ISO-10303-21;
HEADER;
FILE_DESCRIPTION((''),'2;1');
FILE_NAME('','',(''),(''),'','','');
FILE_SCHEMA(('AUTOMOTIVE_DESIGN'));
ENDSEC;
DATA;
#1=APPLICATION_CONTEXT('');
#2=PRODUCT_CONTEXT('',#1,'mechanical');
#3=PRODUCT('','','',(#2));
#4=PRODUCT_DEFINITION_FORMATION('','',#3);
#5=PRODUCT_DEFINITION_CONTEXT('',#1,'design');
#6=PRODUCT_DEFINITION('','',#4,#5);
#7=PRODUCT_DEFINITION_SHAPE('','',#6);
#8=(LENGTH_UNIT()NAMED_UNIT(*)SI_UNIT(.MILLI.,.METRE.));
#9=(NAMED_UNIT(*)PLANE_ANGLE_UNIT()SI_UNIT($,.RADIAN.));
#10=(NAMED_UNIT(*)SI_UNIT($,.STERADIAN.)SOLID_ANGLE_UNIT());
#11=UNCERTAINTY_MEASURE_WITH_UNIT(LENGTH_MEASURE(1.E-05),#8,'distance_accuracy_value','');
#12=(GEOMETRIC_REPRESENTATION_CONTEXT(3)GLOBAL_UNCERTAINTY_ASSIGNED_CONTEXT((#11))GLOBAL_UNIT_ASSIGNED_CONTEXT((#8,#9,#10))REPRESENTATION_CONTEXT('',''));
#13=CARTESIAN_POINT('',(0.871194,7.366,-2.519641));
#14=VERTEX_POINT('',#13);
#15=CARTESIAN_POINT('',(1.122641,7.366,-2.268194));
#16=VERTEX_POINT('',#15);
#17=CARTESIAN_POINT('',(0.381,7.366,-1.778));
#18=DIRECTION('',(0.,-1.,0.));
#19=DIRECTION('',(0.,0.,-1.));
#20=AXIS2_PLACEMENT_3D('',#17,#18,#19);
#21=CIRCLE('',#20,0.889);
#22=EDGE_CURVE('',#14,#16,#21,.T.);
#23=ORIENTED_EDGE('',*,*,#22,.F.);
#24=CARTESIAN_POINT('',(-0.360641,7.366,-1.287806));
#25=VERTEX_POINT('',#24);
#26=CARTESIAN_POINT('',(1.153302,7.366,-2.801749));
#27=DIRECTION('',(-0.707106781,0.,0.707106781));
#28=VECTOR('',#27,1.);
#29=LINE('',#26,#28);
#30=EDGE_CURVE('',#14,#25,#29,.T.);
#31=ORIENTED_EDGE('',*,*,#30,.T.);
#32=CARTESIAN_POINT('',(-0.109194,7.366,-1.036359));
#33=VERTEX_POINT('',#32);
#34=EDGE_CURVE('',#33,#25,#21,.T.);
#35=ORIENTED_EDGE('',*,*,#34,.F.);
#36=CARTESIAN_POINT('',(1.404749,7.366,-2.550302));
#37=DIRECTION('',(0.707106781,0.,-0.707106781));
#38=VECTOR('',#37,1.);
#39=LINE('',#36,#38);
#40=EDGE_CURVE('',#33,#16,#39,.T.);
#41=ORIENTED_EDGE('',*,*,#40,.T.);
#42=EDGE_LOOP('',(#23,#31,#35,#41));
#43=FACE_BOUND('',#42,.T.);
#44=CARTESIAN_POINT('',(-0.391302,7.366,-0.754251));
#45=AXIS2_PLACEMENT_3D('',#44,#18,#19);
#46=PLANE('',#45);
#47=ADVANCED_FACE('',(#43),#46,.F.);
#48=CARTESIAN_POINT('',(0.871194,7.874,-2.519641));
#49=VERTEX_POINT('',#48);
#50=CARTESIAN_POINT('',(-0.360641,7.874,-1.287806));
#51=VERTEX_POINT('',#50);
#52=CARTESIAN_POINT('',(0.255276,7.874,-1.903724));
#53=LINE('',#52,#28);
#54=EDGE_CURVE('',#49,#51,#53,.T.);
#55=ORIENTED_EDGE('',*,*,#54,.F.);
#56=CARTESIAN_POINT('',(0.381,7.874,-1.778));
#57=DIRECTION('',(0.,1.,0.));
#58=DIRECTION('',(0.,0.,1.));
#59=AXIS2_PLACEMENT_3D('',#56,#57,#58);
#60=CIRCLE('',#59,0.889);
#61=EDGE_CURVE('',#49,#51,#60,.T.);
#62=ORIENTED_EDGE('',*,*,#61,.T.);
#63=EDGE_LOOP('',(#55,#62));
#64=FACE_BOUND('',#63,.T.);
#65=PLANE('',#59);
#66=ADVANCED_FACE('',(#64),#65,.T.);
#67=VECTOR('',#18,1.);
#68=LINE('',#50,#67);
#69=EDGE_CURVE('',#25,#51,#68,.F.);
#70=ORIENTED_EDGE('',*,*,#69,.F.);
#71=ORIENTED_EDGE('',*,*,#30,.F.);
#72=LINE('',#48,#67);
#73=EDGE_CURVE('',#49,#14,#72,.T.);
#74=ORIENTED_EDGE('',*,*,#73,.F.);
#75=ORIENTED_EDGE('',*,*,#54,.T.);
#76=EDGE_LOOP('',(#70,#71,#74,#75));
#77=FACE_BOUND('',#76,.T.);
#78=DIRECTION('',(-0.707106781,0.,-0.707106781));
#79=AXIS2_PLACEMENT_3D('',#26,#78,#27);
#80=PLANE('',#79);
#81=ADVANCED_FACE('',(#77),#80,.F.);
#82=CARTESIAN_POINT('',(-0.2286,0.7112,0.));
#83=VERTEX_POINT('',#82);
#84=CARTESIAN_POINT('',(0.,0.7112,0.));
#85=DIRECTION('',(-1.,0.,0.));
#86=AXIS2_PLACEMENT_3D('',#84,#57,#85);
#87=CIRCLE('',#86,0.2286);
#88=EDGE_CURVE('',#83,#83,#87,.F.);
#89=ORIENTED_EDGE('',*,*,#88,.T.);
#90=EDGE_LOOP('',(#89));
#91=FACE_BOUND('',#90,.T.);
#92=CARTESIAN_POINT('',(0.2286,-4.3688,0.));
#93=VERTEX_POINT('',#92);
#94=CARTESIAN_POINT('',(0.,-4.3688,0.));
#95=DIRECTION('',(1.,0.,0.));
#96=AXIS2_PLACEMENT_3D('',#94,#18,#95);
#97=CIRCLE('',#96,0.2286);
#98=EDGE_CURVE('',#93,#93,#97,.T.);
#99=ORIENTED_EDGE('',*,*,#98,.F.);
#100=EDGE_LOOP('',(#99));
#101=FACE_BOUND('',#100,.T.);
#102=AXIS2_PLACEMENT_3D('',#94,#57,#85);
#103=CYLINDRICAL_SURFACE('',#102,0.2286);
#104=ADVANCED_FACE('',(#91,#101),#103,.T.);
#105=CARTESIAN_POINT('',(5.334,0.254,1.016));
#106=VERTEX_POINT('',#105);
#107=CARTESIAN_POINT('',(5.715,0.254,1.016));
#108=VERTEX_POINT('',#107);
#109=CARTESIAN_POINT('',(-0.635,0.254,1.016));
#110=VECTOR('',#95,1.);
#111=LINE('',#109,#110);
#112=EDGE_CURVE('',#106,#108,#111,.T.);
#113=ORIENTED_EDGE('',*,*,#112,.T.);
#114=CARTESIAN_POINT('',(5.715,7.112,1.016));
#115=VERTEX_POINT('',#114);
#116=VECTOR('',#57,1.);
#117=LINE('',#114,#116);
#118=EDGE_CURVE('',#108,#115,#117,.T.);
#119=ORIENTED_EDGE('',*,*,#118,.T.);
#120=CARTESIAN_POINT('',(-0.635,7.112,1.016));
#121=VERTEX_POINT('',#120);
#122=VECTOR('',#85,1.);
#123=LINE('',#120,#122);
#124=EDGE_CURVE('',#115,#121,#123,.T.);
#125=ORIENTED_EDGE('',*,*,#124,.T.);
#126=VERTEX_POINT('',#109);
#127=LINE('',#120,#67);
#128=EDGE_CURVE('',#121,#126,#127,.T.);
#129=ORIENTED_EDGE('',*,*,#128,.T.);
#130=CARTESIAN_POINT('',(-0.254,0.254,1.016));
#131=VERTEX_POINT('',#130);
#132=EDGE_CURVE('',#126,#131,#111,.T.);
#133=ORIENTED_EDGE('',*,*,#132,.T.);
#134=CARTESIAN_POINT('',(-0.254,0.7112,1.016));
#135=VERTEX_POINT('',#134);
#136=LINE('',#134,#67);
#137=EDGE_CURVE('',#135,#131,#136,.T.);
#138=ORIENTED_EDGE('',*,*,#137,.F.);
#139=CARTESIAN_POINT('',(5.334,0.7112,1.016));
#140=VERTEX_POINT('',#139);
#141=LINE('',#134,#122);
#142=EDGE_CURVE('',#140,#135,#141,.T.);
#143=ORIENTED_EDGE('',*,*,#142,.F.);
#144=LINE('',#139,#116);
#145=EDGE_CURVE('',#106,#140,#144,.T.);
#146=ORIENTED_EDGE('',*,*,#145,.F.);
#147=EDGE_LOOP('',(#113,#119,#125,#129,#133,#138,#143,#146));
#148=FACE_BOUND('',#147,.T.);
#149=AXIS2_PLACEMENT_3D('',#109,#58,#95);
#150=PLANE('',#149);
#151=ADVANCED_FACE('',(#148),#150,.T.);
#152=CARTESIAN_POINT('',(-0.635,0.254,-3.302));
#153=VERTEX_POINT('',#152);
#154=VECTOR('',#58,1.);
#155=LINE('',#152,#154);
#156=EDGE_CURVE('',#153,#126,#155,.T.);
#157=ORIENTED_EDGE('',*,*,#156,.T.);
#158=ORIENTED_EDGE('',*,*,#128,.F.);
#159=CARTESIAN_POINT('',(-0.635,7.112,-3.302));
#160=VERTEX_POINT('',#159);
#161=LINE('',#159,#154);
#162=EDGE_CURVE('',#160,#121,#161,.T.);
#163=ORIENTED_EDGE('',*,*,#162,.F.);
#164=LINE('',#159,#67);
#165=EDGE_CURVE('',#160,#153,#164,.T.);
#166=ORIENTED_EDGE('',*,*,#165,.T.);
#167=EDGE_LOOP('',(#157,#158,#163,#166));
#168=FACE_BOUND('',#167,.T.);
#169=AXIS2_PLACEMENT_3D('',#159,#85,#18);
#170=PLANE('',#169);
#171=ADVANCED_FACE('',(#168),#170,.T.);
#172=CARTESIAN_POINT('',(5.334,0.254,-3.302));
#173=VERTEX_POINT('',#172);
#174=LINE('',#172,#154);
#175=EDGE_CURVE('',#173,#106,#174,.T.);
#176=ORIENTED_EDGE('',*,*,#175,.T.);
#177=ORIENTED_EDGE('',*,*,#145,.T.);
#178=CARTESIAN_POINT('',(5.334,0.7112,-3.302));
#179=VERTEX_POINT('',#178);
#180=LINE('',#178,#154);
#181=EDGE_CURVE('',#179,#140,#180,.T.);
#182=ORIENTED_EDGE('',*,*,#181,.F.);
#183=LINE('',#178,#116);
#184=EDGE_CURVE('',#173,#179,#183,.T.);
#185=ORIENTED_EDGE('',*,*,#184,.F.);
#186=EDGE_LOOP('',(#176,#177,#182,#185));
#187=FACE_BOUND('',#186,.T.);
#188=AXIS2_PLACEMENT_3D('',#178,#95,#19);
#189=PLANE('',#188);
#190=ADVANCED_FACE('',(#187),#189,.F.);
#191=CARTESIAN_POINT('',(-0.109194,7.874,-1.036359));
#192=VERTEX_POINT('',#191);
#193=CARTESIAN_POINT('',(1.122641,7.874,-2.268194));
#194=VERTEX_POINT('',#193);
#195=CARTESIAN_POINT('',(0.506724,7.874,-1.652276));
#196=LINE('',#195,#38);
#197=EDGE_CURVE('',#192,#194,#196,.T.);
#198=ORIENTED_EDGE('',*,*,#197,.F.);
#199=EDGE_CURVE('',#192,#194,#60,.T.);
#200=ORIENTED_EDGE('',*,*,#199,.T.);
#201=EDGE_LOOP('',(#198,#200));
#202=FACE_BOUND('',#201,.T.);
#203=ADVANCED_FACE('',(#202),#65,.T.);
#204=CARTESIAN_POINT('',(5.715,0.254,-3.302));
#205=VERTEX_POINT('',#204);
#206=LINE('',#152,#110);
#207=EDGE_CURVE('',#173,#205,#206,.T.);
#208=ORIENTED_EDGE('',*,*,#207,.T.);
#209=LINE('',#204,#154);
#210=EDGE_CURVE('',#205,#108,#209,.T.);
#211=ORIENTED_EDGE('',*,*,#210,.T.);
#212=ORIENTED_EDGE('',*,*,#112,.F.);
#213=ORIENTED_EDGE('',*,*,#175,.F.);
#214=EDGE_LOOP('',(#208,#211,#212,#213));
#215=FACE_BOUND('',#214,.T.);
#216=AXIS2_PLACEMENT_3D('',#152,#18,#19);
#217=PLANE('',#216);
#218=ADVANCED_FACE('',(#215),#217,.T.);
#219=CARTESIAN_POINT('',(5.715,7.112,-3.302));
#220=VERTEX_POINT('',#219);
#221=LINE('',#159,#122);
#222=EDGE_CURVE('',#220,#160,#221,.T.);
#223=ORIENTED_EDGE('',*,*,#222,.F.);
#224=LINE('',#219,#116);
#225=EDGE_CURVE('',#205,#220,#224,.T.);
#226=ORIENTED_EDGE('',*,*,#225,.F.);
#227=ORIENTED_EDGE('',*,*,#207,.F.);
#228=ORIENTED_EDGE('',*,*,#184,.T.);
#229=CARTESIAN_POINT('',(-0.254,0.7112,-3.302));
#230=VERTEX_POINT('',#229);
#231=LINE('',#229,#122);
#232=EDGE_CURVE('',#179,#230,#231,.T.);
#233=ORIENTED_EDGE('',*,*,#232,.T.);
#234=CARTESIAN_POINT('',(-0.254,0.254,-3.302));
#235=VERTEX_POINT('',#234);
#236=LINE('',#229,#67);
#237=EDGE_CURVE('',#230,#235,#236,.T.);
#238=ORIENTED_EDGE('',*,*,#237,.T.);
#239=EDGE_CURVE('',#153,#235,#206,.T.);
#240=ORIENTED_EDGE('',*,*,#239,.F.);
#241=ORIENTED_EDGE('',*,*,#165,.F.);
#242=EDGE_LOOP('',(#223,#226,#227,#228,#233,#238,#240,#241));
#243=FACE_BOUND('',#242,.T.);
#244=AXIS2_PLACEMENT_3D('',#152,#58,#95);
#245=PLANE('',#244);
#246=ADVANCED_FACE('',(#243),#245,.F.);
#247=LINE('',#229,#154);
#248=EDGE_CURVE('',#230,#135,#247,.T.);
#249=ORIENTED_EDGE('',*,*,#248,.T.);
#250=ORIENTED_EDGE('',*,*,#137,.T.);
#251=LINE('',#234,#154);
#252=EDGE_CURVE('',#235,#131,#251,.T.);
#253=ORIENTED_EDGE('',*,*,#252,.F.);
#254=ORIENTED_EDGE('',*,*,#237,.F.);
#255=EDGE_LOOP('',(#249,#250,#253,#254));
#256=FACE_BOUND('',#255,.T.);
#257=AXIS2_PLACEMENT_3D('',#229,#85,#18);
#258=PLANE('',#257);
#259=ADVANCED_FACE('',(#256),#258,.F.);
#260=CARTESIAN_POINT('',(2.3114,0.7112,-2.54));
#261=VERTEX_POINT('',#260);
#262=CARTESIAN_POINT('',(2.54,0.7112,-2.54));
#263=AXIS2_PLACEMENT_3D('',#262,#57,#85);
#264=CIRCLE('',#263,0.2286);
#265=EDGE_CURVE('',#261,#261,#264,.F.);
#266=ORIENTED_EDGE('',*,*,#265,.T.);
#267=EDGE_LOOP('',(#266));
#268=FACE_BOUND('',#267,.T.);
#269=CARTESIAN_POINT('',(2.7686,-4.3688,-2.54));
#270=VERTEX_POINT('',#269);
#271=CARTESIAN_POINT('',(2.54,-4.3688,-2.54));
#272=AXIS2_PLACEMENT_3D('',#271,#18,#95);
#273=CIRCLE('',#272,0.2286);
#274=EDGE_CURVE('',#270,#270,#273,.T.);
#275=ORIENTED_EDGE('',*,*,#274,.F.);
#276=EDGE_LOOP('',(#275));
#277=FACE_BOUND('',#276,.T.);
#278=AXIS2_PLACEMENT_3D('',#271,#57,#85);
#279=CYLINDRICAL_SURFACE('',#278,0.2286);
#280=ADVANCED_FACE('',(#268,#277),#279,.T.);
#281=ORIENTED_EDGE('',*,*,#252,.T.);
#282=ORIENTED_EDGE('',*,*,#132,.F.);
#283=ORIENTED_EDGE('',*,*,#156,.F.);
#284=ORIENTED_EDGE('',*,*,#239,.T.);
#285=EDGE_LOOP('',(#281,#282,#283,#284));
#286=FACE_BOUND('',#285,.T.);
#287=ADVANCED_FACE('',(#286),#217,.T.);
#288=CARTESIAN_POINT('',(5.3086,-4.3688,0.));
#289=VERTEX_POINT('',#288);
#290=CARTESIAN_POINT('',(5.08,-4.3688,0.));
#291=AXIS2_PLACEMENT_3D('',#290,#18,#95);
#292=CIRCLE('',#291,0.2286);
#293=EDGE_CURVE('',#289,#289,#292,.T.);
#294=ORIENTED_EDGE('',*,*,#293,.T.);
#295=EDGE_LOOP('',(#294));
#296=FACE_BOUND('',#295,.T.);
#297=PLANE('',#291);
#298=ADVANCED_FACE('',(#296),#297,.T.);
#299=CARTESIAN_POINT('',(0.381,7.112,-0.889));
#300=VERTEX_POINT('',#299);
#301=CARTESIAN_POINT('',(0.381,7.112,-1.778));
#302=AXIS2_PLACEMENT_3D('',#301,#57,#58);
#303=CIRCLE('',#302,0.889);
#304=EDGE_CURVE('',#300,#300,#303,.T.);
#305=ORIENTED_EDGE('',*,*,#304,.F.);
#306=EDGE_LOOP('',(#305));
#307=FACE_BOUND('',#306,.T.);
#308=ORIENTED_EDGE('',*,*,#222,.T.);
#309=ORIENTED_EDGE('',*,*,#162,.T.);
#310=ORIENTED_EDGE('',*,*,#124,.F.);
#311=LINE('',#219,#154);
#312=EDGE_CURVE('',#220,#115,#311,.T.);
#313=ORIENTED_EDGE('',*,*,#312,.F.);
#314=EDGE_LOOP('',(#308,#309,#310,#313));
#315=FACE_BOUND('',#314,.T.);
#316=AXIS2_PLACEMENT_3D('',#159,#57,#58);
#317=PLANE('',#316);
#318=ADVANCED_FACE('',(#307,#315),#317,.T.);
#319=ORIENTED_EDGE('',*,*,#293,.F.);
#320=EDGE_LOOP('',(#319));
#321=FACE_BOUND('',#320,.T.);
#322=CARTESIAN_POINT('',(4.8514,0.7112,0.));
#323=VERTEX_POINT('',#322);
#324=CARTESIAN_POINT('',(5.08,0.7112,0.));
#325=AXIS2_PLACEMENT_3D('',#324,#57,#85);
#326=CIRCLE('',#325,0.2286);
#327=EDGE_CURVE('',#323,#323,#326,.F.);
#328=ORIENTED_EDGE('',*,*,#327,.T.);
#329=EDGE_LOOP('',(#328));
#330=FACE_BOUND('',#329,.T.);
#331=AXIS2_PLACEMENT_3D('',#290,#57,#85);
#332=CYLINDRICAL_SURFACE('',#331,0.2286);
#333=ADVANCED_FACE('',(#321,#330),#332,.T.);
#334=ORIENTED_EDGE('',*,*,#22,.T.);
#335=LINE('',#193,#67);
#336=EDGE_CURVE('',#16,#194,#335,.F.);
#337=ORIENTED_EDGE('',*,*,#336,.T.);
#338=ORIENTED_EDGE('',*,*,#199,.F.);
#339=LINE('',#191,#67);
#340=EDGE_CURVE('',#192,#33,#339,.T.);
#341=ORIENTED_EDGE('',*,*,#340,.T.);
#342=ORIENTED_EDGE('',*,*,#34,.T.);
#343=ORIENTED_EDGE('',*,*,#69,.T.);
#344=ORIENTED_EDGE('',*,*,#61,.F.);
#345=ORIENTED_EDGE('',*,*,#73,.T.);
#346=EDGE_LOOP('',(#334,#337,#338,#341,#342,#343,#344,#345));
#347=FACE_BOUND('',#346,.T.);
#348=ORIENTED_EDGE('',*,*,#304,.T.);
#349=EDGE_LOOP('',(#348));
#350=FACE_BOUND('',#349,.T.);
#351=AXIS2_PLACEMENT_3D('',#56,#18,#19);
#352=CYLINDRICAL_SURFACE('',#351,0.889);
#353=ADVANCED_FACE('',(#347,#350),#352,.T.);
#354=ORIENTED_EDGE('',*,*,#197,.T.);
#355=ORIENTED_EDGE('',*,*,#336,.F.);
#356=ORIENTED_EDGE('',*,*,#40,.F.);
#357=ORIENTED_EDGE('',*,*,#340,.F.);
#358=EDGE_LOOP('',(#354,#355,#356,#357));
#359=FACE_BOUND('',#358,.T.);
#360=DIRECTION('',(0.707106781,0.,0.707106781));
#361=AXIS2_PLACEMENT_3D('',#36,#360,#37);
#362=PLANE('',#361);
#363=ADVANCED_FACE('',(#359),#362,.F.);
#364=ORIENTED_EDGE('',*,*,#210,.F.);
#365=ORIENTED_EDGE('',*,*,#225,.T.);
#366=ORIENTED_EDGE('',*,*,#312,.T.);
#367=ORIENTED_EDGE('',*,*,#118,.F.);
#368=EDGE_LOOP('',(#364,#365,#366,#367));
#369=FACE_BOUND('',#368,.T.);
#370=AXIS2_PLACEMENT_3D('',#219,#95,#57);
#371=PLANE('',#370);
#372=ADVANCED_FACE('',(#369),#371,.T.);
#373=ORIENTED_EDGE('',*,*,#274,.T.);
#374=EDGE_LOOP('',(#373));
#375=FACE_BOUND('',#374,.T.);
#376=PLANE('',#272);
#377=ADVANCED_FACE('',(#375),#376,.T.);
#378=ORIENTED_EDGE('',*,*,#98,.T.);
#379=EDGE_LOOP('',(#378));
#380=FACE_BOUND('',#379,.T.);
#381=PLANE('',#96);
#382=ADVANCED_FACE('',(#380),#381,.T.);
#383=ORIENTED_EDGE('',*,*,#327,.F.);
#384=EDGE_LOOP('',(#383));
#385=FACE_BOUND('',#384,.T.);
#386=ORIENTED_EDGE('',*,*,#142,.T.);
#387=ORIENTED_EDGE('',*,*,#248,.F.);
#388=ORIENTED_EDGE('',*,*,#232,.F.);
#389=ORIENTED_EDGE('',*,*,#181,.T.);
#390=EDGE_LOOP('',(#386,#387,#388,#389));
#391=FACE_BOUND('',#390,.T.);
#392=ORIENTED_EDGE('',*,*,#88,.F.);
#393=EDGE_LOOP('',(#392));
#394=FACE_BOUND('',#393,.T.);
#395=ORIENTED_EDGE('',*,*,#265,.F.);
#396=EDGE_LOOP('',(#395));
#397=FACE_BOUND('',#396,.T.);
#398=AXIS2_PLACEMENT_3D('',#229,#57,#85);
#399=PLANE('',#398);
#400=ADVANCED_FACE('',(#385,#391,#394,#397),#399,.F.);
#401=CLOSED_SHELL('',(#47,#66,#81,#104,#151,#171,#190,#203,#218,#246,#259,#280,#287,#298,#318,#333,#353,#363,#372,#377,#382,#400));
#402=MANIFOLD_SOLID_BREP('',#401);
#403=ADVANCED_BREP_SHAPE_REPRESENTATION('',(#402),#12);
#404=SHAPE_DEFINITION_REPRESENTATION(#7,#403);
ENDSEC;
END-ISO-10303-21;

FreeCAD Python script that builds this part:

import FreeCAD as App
import Part
import Sketcher
Q = App.Units.Quantity

doc = App.newDocument("Part")
body = doc.addObject("PartDesign::Body", "Body")

# Sketch on XY plane
sketch1 = body.newObject("Sketcher::SketchObject", "Sketch")
sketch1.AttachmentSupport = (doc.getObject("XY_Plane"), [""])
sketch1.MapMode = "FlatFace"
sketch1.addGeometry(Part.LineSegment(App.Vector(-0.635, 7.112, 0), App.Vector(-0.635, 0.254, 0)), False)
sketch1.addGeometry(Part.LineSegment(App.Vector(-0.635, 0.254, 0), App.Vector(5.715, 0.254, 0)), False)
sketch1.addGeometry(Part.LineSegment(App.Vector(5.715, 0.254, 0), App.Vector(5.715, 7.112, 0)), False)
sketch1.addGeometry(Part.LineSegment(App.Vector(5.715, 7.112, 0), App.Vector(-0.635, 7.112, 0)), False)
sketch1.addConstraint(Sketcher.Constraint("Coincident", 0, 2, 1, 1))
sketch1.addConstraint(Sketcher.Constraint("Coincident", 1, 2, 2, 1))
sketch1.addConstraint(Sketcher.Constraint("Coincident", 2, 2, 3, 1))
sketch1.addConstraint(Sketcher.Constraint("Coincident", 3, 2, 0, 1))
sketch1.addConstraint(Sketcher.Constraint("Vertical", 0))
sketch1.addConstraint(Sketcher.Constraint("Horizontal", 1))
sketch1.addConstraint(Sketcher.Constraint("Vertical", 2))
sketch1.addConstraint(Sketcher.Constraint("Horizontal", 3))
sketch1.addConstraint(Sketcher.Constraint("DistanceX", 1, 1, 1, 2, Q("0.25 in")))
sketch1.addConstraint(Sketcher.Constraint("DistanceY", 0, 2, 0, 1, Q("0.27 in")))
sketch1.addConstraint(Sketcher.Constraint("DistanceY", -1, 1, 0, 2, Q("0.01 in")))
sketch1.addConstraint(Sketcher.Constraint("DistanceX", 0, 2, -1, 1, Q("0.025 in")))
pad1 = body.newObject("PartDesign::Pad", "Pad")
pad1.Profile = sketch1
pad1.Type = "TwoLengths"
pad1.Length = Q("0.04 in")
pad1.Length2 = Q("0.13 in")

# Sketch on XY plane
sketch2 = body.newObject("Sketcher::SketchObject", "Sketch001")
sketch2.AttachmentSupport = (doc.getObject("XY_Plane"), [""])
sketch2.MapMode = "FlatFace"
sketch2.AttachmentOffset = App.Placement(App.Vector(0, 0, 0.04 * 25.4), App.Rotation())
sketch2.addGeometry(Part.LineSegment(App.Vector(-0.254, 0.7112, 0), App.Vector(-0.254, 0.254, 0)), False)
sketch2.addGeometry(Part.LineSegment(App.Vector(-0.254, 0.254, 0), App.Vector(5.334, 0.254, 0)), False)
sketch2.addGeometry(Part.LineSegment(App.Vector(5.334, 0.254, 0), App.Vector(5.334, 0.7112, 0)), False)
sketch2.addGeometry(Part.LineSegment(App.Vector(5.334, 0.7112, 0), App.Vector(-0.254, 0.7112, 0)), False)
sketch2.addConstraint(Sketcher.Constraint("Coincident", 0, 2, 1, 1))
sketch2.addConstraint(Sketcher.Constraint("Coincident", 1, 2, 2, 1))
sketch2.addConstraint(Sketcher.Constraint("Coincident", 2, 2, 3, 1))
sketch2.addConstraint(Sketcher.Constraint("Coincident", 3, 2, 0, 1))
sketch2.addConstraint(Sketcher.Constraint("Vertical", 0))
sketch2.addConstraint(Sketcher.Constraint("Horizontal", 1))
sketch2.addConstraint(Sketcher.Constraint("Vertical", 2))
sketch2.addConstraint(Sketcher.Constraint("Horizontal", 3))
sketch2.addConstraint(Sketcher.Constraint("DistanceX", 1, 1, 1, 2, Q("0.22 in")))
sketch2.addConstraint(Sketcher.Constraint("DistanceY", 0, 2, 0, 1, Q("0.018 in")))
sketch2.addConstraint(Sketcher.Constraint("DistanceX", 0, 2, -1, 1, Q("0.01 in")))
sketch2.addConstraint(Sketcher.Constraint("DistanceY", -1, 1, 0, 2, Q("0.01 in")))
pocket1 = body.newObject("PartDesign::Pocket", "Pocket")
pocket1.Profile = sketch2
pocket1.Type = "ThroughAll"

# Sketch on XZ plane
sketch3 = body.newObject("Sketcher::SketchObject", "Sketch002")
sketch3.AttachmentSupport = (doc.getObject("XZ_Plane"), [""])
sketch3.MapMode = "FlatFace"
sketch3.AttachmentOffset = App.Placement(App.Vector(0, 0, -0.28 * 25.4), App.Rotation())
sketch3.addGeometry(Part.Circle(App.Vector(0.381, -1.778, 0), App.Vector(0, 0, 1), 0.889), False)
sketch3.addConstraint(Sketcher.Constraint("Diameter", 0, Q("0.07 in")))
sketch3.addConstraint(Sketcher.Constraint("DistanceY", 0, 3, -1, 1, Q("0.07 in")))
sketch3.addConstraint(Sketcher.Constraint("DistanceX", -1, 1, 0, 3, Q("0.015 in")))
pad2 = body.newObject("PartDesign::Pad", "Pad001")
pad2.Profile = sketch3
pad2.Length = Q("0.03 in")
pad2.Reversed = True

# Sketch on XZ plane
sketch4 = body.newObject("Sketcher::SketchObject", "Sketch003")
sketch4.AttachmentSupport = (doc.getObject("XZ_Plane"), [""])
sketch4.MapMode = "FlatFace"
sketch4.AttachmentOffset = App.Placement(App.Vector(0, 0, -0.31 * 25.4), App.Rotation())
sketch4.addGeometry(Part.LineSegment(App.Vector(1.153302, -2.801749, 0), App.Vector(-0.642749, -1.005698, 0)), False)
sketch4.addGeometry(Part.LineSegment(App.Vector(-0.642749, -1.005698, 0), App.Vector(-0.391302, -0.754251, 0)), False)
sketch4.addGeometry(Part.LineSegment(App.Vector(-0.391302, -0.754251, 0), App.Vector(1.404749, -2.550302, 0)), False)
sketch4.addGeometry(Part.LineSegment(App.Vector(1.404749, -2.550302, 0), App.Vector(1.153302, -2.801749, 0)), False)
sketch4.addConstraint(Sketcher.Constraint("Coincident", 0, 2, 1, 1))
sketch4.addConstraint(Sketcher.Constraint("Coincident", 1, 2, 2, 1))
sketch4.addConstraint(Sketcher.Constraint("Coincident", 2, 2, 3, 1))
sketch4.addConstraint(Sketcher.Constraint("Coincident", 3, 2, 0, 1))
sketch4.addConstraint(Sketcher.Constraint("Perpendicular", 0, 1))
sketch4.addConstraint(Sketcher.Constraint("Perpendicular", 1, 2))
sketch4.addConstraint(Sketcher.Constraint("Perpendicular", 2, 3))
sketch4.addConstraint(Sketcher.Constraint("Angle", 0, Q("135 deg")))
sketch4.addConstraint(Sketcher.Constraint("Distance", 0, Q("0.1 in")))
sketch4.addConstraint(Sketcher.Constraint("Distance", 1, Q("0.014 in")))
sketch4.addConstraint(Sketcher.Constraint("DistanceX", 0, 2, -1, 1, Q("0.642749 mm")))
sketch4.addConstraint(Sketcher.Constraint("DistanceY", 1, 2, -1, 1, Q("0.754251 mm")))
pocket2 = body.newObject("PartDesign::Pocket", "Pocket001")
pocket2.Profile = sketch4
pocket2.Length = Q("0.02 in")
pocket2.Reversed = True

# Sketch on XZ plane
sketch5 = body.newObject("Sketcher::SketchObject", "Sketch004")
sketch5.AttachmentSupport = (doc.getObject("XZ_Plane"), [""])
sketch5.MapMode = "FlatFace"
sketch5.AttachmentOffset = App.Placement(App.Vector(0, 0, -0.028 * 25.4), App.Rotation())
sketch5.addGeometry(Part.Circle(App.Vector(0, 0, 0), App.Vector(0, 0, 1), 0.2286), False)
sketch5.addGeometry(Part.Circle(App.Vector(5.08, 0, 0), App.Vector(0, 0, 1), 0.2286), False)
sketch5.addGeometry(Part.Circle(App.Vector(2.54, -2.54, 0), App.Vector(0, 0, 1), 0.2286), False)
sketch5.addConstraint(Sketcher.Constraint("Coincident", 0, 3, -1, 1))
sketch5.addConstraint(Sketcher.Constraint("Equal", 0, 1))
sketch5.addConstraint(Sketcher.Constraint("Equal", 1, 2))
sketch5.addConstraint(Sketcher.Constraint("PointOnObject", 1, 3, -1))
sketch5.addConstraint(Sketcher.Constraint("Diameter", 0, Q("0.018 in")))
sketch5.addConstraint(Sketcher.Constraint("DistanceX", -1, 1, 1, 3, Q("0.2 in")))
sketch5.addConstraint(Sketcher.Constraint("DistanceX", -1, 1, 2, 3, Q("0.1 in")))
sketch5.addConstraint(Sketcher.Constraint("DistanceY", 2, 3, -1, 1, Q("0.1 in")))
pad3 = body.newObject("PartDesign::Pad", "Pad002")
pad3.Profile = sketch5
pad3.Length = Q("0.2 in")

doc.recompute()
